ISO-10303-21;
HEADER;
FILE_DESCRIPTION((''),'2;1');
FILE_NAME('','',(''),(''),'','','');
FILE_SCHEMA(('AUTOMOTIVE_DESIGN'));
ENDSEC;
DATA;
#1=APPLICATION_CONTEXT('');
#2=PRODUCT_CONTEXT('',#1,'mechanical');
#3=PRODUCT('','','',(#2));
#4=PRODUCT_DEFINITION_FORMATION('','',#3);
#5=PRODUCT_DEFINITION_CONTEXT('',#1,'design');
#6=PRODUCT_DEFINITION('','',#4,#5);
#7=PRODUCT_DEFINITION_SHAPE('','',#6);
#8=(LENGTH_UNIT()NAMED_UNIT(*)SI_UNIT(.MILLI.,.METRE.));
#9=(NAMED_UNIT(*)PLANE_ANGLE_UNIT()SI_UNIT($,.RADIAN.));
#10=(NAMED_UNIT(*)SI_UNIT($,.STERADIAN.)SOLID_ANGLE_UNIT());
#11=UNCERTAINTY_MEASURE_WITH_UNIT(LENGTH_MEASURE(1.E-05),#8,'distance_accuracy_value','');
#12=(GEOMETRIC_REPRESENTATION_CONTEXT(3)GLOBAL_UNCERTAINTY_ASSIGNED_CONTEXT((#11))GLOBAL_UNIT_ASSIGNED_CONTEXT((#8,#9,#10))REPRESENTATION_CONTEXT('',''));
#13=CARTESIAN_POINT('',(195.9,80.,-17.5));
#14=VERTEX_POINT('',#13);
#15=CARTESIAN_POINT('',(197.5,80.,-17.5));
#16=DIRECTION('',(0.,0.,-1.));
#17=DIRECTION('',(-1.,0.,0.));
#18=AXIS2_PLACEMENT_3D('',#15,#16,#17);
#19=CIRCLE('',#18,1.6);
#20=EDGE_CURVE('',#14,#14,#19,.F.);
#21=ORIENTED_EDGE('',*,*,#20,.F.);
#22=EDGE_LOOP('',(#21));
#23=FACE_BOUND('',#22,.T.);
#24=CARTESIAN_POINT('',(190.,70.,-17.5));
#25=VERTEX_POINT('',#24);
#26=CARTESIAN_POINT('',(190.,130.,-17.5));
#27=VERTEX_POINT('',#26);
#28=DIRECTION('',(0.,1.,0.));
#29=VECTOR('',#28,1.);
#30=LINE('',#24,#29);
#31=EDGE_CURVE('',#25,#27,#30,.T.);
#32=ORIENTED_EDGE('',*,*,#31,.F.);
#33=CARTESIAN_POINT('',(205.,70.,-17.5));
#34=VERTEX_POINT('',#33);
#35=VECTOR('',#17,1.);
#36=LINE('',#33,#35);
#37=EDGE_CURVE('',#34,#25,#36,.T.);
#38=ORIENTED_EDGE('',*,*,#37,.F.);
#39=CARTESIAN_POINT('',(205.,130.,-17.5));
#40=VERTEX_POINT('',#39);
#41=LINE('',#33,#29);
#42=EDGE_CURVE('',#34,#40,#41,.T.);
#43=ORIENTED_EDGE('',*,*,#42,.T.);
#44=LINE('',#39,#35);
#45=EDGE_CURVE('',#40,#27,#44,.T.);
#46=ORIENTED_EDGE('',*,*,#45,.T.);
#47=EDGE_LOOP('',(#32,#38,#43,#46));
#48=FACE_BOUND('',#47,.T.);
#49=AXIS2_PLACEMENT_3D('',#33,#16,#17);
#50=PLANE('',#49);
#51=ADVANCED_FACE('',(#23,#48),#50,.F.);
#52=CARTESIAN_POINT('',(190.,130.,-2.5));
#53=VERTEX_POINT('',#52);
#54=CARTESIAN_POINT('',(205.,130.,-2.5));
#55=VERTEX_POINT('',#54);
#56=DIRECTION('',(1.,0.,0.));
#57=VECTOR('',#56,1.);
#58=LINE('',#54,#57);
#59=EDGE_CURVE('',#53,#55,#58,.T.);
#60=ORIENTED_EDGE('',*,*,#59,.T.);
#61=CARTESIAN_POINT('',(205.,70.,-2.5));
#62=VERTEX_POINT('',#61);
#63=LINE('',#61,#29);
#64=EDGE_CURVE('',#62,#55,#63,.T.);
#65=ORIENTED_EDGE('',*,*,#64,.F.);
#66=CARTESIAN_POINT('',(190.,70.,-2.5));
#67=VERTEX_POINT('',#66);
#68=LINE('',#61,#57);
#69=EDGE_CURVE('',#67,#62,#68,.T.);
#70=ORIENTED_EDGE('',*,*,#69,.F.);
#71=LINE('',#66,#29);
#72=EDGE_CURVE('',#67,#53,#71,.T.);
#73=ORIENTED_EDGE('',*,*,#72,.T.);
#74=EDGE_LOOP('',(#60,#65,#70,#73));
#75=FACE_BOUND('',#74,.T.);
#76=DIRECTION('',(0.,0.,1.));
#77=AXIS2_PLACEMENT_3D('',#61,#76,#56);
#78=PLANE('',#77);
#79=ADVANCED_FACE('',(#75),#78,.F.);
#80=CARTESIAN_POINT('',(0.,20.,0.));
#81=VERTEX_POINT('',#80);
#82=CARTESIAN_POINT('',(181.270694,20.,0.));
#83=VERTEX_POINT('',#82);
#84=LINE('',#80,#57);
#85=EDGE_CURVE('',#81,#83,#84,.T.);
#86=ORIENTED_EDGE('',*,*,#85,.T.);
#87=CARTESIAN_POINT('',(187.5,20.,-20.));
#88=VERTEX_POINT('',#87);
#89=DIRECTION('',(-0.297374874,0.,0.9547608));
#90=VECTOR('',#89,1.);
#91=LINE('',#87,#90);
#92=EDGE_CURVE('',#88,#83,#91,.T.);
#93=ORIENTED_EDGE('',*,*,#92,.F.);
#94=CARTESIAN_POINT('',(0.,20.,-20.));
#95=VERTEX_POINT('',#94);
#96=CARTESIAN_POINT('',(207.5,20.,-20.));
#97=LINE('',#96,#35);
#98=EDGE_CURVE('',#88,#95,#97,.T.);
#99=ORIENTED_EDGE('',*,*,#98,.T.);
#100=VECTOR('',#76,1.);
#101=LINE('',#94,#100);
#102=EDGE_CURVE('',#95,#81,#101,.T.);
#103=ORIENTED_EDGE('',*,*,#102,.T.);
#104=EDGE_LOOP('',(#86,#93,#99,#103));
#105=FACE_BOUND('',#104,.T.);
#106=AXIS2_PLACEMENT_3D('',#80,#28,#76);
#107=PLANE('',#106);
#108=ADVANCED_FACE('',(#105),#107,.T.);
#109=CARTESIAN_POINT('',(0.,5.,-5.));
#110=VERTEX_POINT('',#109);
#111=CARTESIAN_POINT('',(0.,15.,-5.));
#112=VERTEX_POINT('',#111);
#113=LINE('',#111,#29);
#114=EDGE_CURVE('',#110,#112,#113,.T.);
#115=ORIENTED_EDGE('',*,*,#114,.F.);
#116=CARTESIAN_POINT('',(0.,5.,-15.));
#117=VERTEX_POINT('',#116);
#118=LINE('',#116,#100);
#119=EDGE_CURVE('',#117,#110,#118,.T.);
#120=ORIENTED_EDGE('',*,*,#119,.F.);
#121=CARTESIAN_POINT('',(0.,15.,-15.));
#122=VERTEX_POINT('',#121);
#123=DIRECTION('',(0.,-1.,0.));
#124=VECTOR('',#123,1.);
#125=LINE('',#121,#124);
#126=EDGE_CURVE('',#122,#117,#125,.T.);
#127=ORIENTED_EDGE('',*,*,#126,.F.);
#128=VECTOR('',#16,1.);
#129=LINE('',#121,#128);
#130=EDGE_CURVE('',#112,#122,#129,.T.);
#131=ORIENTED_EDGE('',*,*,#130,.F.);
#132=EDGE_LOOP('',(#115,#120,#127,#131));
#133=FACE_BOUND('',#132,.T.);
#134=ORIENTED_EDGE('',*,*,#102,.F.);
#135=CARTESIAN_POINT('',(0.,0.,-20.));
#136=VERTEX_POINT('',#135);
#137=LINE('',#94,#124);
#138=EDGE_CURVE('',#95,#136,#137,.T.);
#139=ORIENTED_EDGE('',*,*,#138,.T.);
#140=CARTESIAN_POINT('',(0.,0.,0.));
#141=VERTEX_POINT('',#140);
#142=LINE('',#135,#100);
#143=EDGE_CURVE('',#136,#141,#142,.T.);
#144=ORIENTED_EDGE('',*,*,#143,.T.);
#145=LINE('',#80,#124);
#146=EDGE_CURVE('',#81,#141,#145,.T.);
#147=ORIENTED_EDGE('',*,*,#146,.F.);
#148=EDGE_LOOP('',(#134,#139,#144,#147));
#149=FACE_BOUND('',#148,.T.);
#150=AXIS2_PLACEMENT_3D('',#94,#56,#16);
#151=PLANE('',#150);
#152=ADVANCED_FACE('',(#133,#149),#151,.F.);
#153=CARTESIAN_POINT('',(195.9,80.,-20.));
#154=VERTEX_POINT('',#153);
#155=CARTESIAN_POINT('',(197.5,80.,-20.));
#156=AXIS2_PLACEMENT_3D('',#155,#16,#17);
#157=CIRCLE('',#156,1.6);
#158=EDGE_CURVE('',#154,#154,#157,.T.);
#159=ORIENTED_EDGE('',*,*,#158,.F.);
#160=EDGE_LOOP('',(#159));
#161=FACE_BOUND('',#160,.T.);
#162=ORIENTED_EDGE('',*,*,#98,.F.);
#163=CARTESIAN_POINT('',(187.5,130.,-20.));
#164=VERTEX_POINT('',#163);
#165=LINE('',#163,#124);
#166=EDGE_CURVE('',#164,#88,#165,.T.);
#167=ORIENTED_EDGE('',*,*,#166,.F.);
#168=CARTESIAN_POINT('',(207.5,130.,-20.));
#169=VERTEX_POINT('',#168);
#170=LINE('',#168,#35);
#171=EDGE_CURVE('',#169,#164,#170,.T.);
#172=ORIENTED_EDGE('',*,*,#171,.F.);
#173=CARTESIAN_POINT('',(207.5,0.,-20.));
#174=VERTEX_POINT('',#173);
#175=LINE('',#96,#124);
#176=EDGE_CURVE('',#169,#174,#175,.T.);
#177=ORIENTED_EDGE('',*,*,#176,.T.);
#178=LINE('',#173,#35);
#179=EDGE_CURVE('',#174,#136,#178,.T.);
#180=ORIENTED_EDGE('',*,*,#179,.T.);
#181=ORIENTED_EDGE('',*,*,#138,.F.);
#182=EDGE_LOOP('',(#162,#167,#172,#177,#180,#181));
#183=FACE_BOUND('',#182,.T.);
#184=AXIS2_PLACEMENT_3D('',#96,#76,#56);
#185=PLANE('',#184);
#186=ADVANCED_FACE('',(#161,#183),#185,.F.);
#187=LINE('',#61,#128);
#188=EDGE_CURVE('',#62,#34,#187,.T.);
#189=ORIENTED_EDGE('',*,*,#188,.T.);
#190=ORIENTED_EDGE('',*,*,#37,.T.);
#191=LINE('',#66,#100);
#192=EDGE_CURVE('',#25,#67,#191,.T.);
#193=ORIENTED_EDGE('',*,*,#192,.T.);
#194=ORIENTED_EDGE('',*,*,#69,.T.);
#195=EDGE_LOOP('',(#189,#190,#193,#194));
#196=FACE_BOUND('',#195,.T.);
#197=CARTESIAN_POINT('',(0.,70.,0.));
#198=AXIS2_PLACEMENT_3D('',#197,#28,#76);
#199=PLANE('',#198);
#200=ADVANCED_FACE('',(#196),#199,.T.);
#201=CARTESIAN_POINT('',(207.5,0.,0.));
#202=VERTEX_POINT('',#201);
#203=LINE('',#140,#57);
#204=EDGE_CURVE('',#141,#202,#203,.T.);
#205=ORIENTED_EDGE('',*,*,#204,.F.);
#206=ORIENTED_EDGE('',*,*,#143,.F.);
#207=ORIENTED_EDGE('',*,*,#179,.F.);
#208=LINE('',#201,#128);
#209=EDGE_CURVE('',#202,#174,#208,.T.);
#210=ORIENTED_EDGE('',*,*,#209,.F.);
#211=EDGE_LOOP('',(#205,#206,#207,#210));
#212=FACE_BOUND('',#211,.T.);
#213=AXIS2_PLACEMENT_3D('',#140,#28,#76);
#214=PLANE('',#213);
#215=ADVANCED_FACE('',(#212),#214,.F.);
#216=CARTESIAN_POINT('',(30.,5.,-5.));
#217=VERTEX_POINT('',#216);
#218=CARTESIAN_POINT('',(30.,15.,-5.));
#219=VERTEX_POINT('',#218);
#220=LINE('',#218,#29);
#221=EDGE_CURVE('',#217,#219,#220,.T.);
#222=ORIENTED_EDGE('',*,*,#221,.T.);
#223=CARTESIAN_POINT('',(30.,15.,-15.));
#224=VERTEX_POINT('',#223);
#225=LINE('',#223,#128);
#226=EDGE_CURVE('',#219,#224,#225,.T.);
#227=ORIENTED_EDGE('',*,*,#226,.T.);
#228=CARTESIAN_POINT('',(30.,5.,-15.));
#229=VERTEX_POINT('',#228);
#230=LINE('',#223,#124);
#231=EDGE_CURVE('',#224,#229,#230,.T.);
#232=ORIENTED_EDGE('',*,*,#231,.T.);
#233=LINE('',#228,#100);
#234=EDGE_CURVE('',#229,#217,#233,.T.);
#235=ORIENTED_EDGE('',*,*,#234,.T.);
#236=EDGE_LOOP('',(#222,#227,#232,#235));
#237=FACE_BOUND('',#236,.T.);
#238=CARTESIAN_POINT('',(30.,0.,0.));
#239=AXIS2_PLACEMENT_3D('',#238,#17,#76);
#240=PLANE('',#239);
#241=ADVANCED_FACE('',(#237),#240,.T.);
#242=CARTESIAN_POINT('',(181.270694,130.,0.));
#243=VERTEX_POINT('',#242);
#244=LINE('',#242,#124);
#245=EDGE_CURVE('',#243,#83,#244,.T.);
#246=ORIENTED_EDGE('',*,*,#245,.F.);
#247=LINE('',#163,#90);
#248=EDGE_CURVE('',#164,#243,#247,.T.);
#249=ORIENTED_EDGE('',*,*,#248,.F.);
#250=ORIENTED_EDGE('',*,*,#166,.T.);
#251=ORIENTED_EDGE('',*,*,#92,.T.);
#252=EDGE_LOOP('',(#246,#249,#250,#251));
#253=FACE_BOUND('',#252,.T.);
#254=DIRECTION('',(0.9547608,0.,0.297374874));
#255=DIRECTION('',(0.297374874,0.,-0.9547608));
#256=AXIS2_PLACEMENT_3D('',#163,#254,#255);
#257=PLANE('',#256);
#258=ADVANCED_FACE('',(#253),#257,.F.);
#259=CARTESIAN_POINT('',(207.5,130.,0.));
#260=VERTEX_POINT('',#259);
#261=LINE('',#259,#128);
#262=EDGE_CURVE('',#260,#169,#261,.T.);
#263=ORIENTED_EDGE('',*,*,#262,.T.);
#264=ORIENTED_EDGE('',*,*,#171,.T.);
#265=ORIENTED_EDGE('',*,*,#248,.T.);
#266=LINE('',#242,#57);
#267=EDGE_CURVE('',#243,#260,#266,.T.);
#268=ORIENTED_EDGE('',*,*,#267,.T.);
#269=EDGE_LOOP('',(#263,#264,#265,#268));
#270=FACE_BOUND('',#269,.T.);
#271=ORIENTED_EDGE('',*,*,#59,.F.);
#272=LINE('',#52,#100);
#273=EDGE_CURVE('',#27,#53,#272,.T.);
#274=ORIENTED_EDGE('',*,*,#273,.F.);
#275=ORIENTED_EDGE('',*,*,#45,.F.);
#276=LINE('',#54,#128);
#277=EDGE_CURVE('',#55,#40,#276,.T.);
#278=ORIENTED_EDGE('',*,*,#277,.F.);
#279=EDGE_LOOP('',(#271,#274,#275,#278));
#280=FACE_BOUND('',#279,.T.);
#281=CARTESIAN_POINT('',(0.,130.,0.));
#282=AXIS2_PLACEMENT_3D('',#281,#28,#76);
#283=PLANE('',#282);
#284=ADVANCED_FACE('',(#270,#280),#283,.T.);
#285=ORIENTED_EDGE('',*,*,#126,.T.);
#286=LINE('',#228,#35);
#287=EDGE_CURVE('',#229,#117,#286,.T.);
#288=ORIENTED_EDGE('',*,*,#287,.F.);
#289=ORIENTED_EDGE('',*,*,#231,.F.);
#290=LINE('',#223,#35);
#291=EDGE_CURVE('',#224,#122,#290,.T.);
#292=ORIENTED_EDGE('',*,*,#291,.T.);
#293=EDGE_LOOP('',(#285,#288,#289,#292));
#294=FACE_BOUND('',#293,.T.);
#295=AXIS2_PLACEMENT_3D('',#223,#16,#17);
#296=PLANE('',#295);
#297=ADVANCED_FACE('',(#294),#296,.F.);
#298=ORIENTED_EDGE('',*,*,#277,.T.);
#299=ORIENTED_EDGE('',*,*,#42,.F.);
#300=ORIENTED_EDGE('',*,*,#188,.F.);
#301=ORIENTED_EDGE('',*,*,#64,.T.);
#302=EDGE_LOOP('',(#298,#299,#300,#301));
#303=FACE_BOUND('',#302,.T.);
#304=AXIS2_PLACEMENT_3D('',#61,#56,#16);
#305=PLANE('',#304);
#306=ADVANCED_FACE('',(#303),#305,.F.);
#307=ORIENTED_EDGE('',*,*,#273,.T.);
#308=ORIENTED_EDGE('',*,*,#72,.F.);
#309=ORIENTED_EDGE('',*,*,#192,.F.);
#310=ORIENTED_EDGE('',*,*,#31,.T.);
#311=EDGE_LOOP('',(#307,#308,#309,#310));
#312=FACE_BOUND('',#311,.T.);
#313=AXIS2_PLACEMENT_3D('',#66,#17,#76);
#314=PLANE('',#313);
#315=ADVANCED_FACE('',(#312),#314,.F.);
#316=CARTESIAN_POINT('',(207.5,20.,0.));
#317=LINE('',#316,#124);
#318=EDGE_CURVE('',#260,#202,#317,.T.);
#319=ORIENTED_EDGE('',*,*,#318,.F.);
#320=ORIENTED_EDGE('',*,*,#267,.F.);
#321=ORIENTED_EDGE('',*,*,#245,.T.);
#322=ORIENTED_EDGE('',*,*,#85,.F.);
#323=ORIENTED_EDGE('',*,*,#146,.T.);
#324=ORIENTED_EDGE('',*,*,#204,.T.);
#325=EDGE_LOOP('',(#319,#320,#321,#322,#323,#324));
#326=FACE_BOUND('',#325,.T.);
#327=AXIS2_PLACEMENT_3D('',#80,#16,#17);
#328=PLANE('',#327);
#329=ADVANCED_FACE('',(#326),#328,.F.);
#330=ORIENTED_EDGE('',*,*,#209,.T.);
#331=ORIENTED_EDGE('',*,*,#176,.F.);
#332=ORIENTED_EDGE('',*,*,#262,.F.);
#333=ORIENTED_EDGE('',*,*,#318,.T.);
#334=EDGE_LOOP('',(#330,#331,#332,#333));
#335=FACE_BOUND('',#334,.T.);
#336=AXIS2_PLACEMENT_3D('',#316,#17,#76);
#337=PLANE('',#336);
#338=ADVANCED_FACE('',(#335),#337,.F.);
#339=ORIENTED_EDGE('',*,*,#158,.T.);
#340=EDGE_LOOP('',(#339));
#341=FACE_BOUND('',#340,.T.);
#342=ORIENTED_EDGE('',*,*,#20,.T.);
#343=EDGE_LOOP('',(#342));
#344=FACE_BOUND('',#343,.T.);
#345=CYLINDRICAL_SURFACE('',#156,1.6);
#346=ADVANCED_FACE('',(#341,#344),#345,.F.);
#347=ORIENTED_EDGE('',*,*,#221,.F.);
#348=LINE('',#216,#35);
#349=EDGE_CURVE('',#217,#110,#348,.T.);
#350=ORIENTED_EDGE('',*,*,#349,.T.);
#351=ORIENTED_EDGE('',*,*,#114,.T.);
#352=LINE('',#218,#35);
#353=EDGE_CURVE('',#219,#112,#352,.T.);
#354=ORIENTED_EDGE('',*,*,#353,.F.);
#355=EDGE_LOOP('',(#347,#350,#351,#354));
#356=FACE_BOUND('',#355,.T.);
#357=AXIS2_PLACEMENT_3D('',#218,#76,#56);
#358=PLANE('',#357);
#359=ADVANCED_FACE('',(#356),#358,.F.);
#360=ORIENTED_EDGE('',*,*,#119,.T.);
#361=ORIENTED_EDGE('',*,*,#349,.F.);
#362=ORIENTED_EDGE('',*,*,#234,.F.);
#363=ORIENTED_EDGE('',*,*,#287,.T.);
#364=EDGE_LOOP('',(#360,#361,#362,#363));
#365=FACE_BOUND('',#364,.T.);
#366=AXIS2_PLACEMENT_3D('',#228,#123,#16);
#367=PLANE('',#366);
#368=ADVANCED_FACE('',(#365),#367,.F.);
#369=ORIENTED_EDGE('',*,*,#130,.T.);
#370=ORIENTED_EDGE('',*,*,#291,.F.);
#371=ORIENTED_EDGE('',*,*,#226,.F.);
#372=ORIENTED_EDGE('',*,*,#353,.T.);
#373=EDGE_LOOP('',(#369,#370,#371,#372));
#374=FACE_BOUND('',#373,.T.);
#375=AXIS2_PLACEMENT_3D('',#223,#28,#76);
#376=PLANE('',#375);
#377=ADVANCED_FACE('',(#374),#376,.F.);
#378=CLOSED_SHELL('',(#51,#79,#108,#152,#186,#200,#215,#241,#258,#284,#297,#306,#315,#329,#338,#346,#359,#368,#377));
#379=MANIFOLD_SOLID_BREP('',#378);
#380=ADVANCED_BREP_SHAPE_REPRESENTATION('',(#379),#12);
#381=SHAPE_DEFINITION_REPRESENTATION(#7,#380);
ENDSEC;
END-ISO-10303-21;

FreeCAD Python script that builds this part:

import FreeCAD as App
import Part
import Sketcher
from FreeCAD import Vector
Q = App.Units.Quantity

doc = App.newDocument("Part")
params = doc.addObject("Spreadsheet::Sheet", "Params")
for row, (alias, value) in enumerate([
    ("sketch1_height", "20 mm"),
    ("sketch1_width", "207.5 mm"),
    ("pad1_length", "20 mm"),
    ("sketch2_width", "20 mm"),
    ("pad2_length", "110 mm"),
    ("sketch3_width", "10 mm"),
    ("pocket1_length", "30 mm"),
    ("sketch4_diameter", "3.2 mm"),
    ("hole_diameter", "3.2 mm"),
    ("hole_depth", "10 mm"),
    ("sketch5_width", "15 mm"),
    ("pocket2_length", "60 mm"),
], start=1):
    params.set(f"A{row}", alias)
    params.set(f"B{row}", "=" + value)
    params.setAlias(f"B{row}", alias)

body = doc.addObject("PartDesign::Body", "Body")

# Sketch on XZ plane
sketch1 = body.newObject("Sketcher::SketchObject", "Sketch")
sketch1.AttachmentSupport = (doc.getObject("XZ_Plane"), [""])
sketch1.MapMode = "FlatFace"
sketch1.addGeometry([
    Part.LineSegment(Vector(0, -20, 0), Vector(0, 0, 0)),
    Part.LineSegment(Vector(0, 0, 0), Vector(208, 0, 0)),
    Part.LineSegment(Vector(208, 0, 0), Vector(208, -20, 0)),
    Part.LineSegment(Vector(208, -20, 0), Vector(0, -20, 0)),
], False)
sketch1.addConstraint([
    Sketcher.Constraint("Coincident", 0, 2, 1, 1),
    Sketcher.Constraint("Coincident", 1, 2, 2, 1),
    Sketcher.Constraint("Coincident", 2, 2, 3, 1),
    Sketcher.Constraint("Coincident", 3, 2, 0, 1),
    Sketcher.Constraint("Vertical", 0),
    Sketcher.Constraint("Horizontal", 1),
    Sketcher.Constraint("Vertical", 2),
    Sketcher.Constraint("Horizontal", 3),
    Sketcher.Constraint("Coincident", 0, 2, -1, 1),
    Sketcher.Constraint("DistanceY", 0, 1, 0, 2, 20.0),
    Sketcher.Constraint("DistanceX", 1, 1, 1, 2, 207.5),
])
sketch1.setExpression("Constraints[9]", "Params.sketch1_height")
sketch1.setExpression("Constraints[10]", "Params.sketch1_width")
pad1 = body.newObject("PartDesign::Pad", "Pad")
pad1.Profile = sketch1
pad1.setExpression("Length", "Params.pad1_length")
pad1.Reversed = True

# Sketch on XZ plane
sketch2 = body.newObject("Sketcher::SketchObject", "Sketch001")
sketch2.AttachmentSupport = (doc.getObject("XZ_Plane"), [""])
sketch2.MapMode = "FlatFace"
sketch2.AttachmentOffset = App.Placement(Vector(0, 0, -20), App.Rotation())
sketch2.addGeometry([
    Part.LineSegment(Vector(208, -20, 0), Vector(188, -20, 0)),
    Part.LineSegment(Vector(188, -20, 0), Vector(181, 0, 0)),
    Part.LineSegment(Vector(181, 0, 0), Vector(208, 0, 0)),
    Part.LineSegment(Vector(208, 0, 0), Vector(208, -20, 0)),
], False)
sketch2.addConstraint([
    Sketcher.Constraint("Coincident", 0, 2, 1, 1),
    Sketcher.Constraint("Coincident", 1, 2, 2, 1),
    Sketcher.Constraint("Coincident", 2, 2, 3, 1),
    Sketcher.Constraint("Coincident", 3, 2, 0, 1),
    Sketcher.Constraint("Horizontal", 0),
    Sketcher.Constraint("Horizontal", 2),
    Sketcher.Constraint("Vertical", 3),
    Sketcher.Constraint("PointOnObject", 1, 2, -1),
    Sketcher.Constraint("Equal", 0, 3),
    Sketcher.Constraint("DistanceX", 0, 2, 0, 1, 20.0),
    Sketcher.Constraint("Angle", 1, Q("107.3 deg")),
    Sketcher.Constraint("DistanceX", -1, 1, 0, 2, 187.5),
])
sketch2.setExpression("Constraints[9]", "Params.sketch2_width")
pad2 = body.newObject("PartDesign::Pad", "Pad001")
pad2.Profile = sketch2
pad2.setExpression("Length", "Params.pad2_length")
pad2.Reversed = True

# Sketch on YZ plane
sketch3 = body.newObject("Sketcher::SketchObject", "Sketch002")
sketch3.AttachmentSupport = (doc.getObject("YZ_Plane"), [""])
sketch3.MapMode = "FlatFace"
sketch3.addGeometry([
    Part.LineSegment(Vector(15, -15, 0), Vector(5, -15, 0)),
    Part.LineSegment(Vector(5, -15, 0), Vector(5, -5, 0)),
    Part.LineSegment(Vector(5, -5, 0), Vector(15, -5, 0)),
    Part.LineSegment(Vector(15, -5, 0), Vector(15, -15, 0)),
], False)
sketch3.addConstraint([
    Sketcher.Constraint("Coincident", 0, 2, 1, 1),
    Sketcher.Constraint("Coincident", 1, 2, 2, 1),
    Sketcher.Constraint("Coincident", 2, 2, 3, 1),
    Sketcher.Constraint("Coincident", 3, 2, 0, 1),
    Sketcher.Constraint("Horizontal", 0),
    Sketcher.Constraint("Vertical", 1),
    Sketcher.Constraint("Horizontal", 2),
    Sketcher.Constraint("Vertical", 3),
    Sketcher.Constraint("Equal", 2, 1),
    Sketcher.Constraint("DistanceX", 0, 2, 0, 1, 10.0),
    Sketcher.Constraint("DistanceX", -1, 1, 0, 2, 5.0),
    Sketcher.Constraint("DistanceY", 0, 2, -1, 1, 15.0),
])
sketch3.setExpression("Constraints[9]", "Params.sketch3_width")
pocket1 = body.newObject("PartDesign::Pocket", "Pocket")
pocket1.Profile = sketch3
pocket1.setExpression("Length", "Params.pocket1_length")
pocket1.Reversed = True

# Sketch on XY plane
sketch4 = body.newObject("Sketcher::SketchObject", "Sketch003")
sketch4.AttachmentSupport = (doc.getObject("XY_Plane"), [""])
sketch4.MapMode = "FlatFace"
sketch4.AttachmentOffset = App.Placement(Vector(0, 0, -20), App.Rotation())
sketch4.addGeometry(Part.Circle(Vector(197.5, 80, 0), Vector(0, 0, 1), 1.6), False)
sketch4.addConstraint([
    Sketcher.Constraint("Diameter", 0, 3.2),
    Sketcher.Constraint("DistanceY", -1, 1, 0, 3, 80.0),
    Sketcher.Constraint("DistanceX", -1, 1, 0, 3, 197.5),
])
sketch4.setExpression("Constraints[0]", "Params.sketch4_diameter")
doc.recompute()
hole = body.newObject("PartDesign::Hole", "Hole")
hole.Profile = sketch4
hole.ThreadType = "None"
hole.setExpression("Diameter", "Params.hole_diameter")
hole.DepthType = "Dimension"
hole.setExpression("Depth", "Params.hole_depth")
hole.DrillPoint = "Angled"
hole.DrillPointAngle = 118
hole.Reversed = True

# Sketch on XZ plane
sketch5 = body.newObject("Sketcher::SketchObject", "Sketch004")
sketch5.AttachmentSupport = (doc.getObject("XZ_Plane"), [""])
sketch5.MapMode = "FlatFace"
sketch5.AttachmentOffset = App.Placement(Vector(0, 0, -130), App.Rotation())
sketch5.addGeometry([
    Part.LineSegment(Vector(190, -18, 0), Vector(190, -2, 0)),
    Part.LineSegment(Vector(190, -2, 0), Vector(205, -2, 0)),
    Part.LineSegment(Vector(205, -2, 0), Vector(205, -18, 0)),
    Part.LineSegment(Vector(205, -18, 0), Vector(190, -18, 0)),
], False)
sketch5.addConstraint([
    Sketcher.Constraint("Coincident", 0, 2, 1, 1),
    Sketcher.Constraint("Coincident", 1, 2, 2, 1),
    Sketcher.Constraint("Coincident", 2, 2, 3, 1),
    Sketcher.Constraint("Coincident", 3, 2, 0, 1),
    Sketcher.Constraint("Vertical", 0),
    Sketcher.Constraint("Horizontal", 1),
    Sketcher.Constraint("Vertical", 2),
    Sketcher.Constraint("Horizontal", 3),
    Sketcher.Constraint("Equal", 3, 0),
    Sketcher.Constraint("DistanceX", 1, 1, 1, 2, 15.0),
    Sketcher.Constraint("DistanceX", -1, 1, 0, 2, 190.0),
    Sketcher.Constraint("DistanceY", 0, 2, -1, 1, 2.5),
])
sketch5.setExpression("Constraints[9]", "Params.sketch5_width")
pocket2 = body.newObject("PartDesign::Pocket", "Pocket001")
pocket2.Profile = sketch5
pocket2.setExpression("Length", "Params.pocket2_length")
pocket2.Reversed = True

doc.recompute()
